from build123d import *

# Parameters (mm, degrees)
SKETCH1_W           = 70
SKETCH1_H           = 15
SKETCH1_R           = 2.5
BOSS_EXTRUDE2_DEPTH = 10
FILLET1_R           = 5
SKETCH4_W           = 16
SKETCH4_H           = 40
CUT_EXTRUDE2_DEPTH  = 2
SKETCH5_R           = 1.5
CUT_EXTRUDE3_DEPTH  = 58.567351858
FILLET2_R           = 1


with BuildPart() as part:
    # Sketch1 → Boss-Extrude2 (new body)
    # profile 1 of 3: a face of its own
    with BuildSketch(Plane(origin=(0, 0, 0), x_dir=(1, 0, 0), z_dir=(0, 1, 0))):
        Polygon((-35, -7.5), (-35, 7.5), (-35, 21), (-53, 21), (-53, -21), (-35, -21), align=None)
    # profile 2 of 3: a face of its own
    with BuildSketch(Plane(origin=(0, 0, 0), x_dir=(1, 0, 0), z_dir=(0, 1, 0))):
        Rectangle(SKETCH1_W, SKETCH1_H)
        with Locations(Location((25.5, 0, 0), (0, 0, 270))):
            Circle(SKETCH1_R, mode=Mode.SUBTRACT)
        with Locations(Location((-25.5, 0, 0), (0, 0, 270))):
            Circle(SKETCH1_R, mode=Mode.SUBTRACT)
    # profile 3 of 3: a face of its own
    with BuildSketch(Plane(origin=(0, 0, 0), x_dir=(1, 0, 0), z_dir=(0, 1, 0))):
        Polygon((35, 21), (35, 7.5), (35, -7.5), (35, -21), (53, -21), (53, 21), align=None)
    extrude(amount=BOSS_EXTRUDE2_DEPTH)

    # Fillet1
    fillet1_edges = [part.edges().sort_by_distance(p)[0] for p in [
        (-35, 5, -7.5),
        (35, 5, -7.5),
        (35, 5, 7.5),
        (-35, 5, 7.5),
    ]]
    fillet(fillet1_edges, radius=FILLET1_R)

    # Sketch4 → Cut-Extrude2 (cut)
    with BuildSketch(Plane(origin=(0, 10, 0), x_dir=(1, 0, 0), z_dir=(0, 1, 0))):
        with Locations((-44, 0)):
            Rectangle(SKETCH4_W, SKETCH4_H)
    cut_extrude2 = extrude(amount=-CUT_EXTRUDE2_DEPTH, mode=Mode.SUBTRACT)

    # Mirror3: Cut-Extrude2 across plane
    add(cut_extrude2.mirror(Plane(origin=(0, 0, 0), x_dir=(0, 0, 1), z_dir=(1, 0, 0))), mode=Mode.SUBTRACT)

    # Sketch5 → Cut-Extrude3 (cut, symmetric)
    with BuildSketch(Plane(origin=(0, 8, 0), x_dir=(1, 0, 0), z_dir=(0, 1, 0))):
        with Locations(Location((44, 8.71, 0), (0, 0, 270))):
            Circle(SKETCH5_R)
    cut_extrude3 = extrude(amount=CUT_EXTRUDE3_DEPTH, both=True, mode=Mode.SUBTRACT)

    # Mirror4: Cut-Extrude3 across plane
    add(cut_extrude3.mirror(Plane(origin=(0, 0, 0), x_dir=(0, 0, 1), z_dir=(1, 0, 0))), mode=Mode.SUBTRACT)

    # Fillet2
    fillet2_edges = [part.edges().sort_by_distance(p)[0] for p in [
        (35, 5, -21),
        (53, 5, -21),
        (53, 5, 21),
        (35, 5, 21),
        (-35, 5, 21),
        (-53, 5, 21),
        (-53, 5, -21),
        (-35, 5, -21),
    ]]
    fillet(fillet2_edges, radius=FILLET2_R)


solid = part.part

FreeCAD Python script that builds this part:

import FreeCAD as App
import Part
import Sketcher
from FreeCAD import Vector


def edges_at(feature, points):
    """Names of the edges that pass closest to the given points."""
    edges = feature.Shape.Edges
    near = lambda p: min(range(len(edges)), key=lambda i: edges[i].distToShape(Part.Vertex(*p))[0])
    return sorted({f"Edge{near(p) + 1}" for p in points})

doc = App.newDocument("Part")
body = doc.addObject("PartDesign::Body", "Body")

# Sketch on XZ plane
sketch1 = body.newObject("Sketcher::SketchObject", "Sketch")
sketch1.AttachmentSupport = (doc.getObject("XZ_Plane"), [""])
sketch1.MapMode = "FlatFace"
sketch1.addGeometry([
    Part.LineSegment(Vector(-35, -21, 0), Vector(-53, -21, 0)),  # 0
    Part.LineSegment(Vector(-53, -21, 0), Vector(-53, 21, 0)),  # 1
    Part.LineSegment(Vector(-53, 21, 0), Vector(-35, 21, 0)),  # 2
    Part.LineSegment(Vector(-35, 21, 0), Vector(-35, 7.5, 0)),  # 3
    Part.LineSegment(Vector(-35, 7.5, 0), Vector(35, 7.5, 0)),  # 4
    Part.LineSegment(Vector(35, 7.5, 0), Vector(35, 21, 0)),  # 5
    Part.LineSegment(Vector(35, 21, 0), Vector(53, 21, 0)),  # 6
    Part.LineSegment(Vector(53, 21, 0), Vector(53, -21, 0)),  # 7
    Part.LineSegment(Vector(53, -21, 0), Vector(35, -21, 0)),  # 8
    Part.LineSegment(Vector(35, -21, 0), Vector(35, -7.5, 0)),  # 9
    Part.LineSegment(Vector(35, -7.5, 0), Vector(-35, -7.5, 0)),  # 10
    Part.LineSegment(Vector(-35, -7.5, 0), Vector(-35, -21, 0)),  # 11
    Part.Circle(Vector(25.5, 0, 0), Vector(0, 0, 1), 2.5),  # 12
    Part.Circle(Vector(-25.5, 0, 0), Vector(0, 0, 1), 2.5),  # 13
], False)
sketch1.addConstraint([
    Sketcher.Constraint("Coincident", 0, 2, 1, 1),
    Sketcher.Constraint("Coincident", 1, 2, 2, 1),
    Sketcher.Constraint("Coincident", 2, 2, 3, 1),
    Sketcher.Constraint("Coincident", 3, 2, 4, 1),
    Sketcher.Constraint("Coincident", 4, 2, 5, 1),
    Sketcher.Constraint("Coincident", 5, 2, 6, 1),
    Sketcher.Constraint("Coincident", 6, 2, 7, 1),
    Sketcher.Constraint("Coincident", 7, 2, 8, 1),
    Sketcher.Constraint("Coincident", 8, 2, 9, 1),
    Sketcher.Constraint("Coincident", 9, 2, 10, 1),
    Sketcher.Constraint("Coincident", 10, 2, 11, 1),
    Sketcher.Constraint("Coincident", 11, 2, 0, 1),
    Sketcher.Constraint("Horizontal", 0),
    Sketcher.Constraint("Vertical", 1),
    Sketcher.Constraint("Horizontal", 2),
    Sketcher.Constraint("Vertical", 3),
    Sketcher.Constraint("Horizontal", 4),
    Sketcher.Constraint("Vertical", 5),
    Sketcher.Constraint("Horizontal", 6),
    Sketcher.Constraint("Vertical", 7),
    Sketcher.Constraint("Horizontal", 8),
    Sketcher.Constraint("Vertical", 9),
    Sketcher.Constraint("Horizontal", 10),
    Sketcher.Constraint("Vertical", 11),
    Sketcher.Constraint("Equal", 12, 13),
    Sketcher.Constraint("Symmetric", 12, 3, 13, 3, -1, 1),
    Sketcher.Constraint("Symmetric", 0, 2, 6, 2, -1, 1),
    Sketcher.Constraint("Symmetric", 2, 2, 8, 2, -1, 1),
    Sketcher.Constraint("Symmetric", 4, 2, 10, 2, -1, 1),
    Sketcher.Constraint("Symmetric", 2, 2, 5, 2, -2),
    Sketcher.Constraint("PointOnObject", 12, 3, -1),
    Sketcher.Constraint("Diameter", 12, 5.0),
    Sketcher.Constraint("DistanceX", 0, 2, 0, 1, 18.0),
    Sketcher.Constraint("DistanceX", 4, 1, 4, 2, 70.0),
    Sketcher.Constraint("DistanceY", 1, 1, 1, 2, 42.0),
    Sketcher.Constraint("DistanceY", 3, 2, 3, 1, 13.5),
    Sketcher.Constraint("DistanceX", 13, 3, 12, 3, 51.0),
])
pad1 = body.newObject("PartDesign::Pad", "Pad")
pad1.Profile = sketch1
pad1.Length = 10
pad1.Reversed = True
doc.recompute()

fillet = body.newObject("PartDesign::Fillet", "Fillet")
fillet.Base = (pad1, edges_at(pad1, [
    (-35, 5, -7.5),
    (35, 5, -7.5),
    (35, 5, 7.5),
    (-35, 5, 7.5),
]))
fillet.Radius = 5

# Sketch on XZ plane
sketch2 = body.newObject("Sketcher::SketchObject", "Sketch001")
sketch2.AttachmentSupport = (doc.getObject("XZ_Plane"), [""])
sketch2.MapMode = "FlatFace"
sketch2.AttachmentOffset = App.Placement(Vector(0, 0, -10), App.Rotation())
sketch2.addGeometry([
    Part.LineSegment(Vector(-52, -20, 0), Vector(-52, 20, 0)),
    Part.LineSegment(Vector(-52, 20, 0), Vector(-36, 20, 0)),
    Part.LineSegment(Vector(-36, 20, 0), Vector(-36, -20, 0)),
    Part.LineSegment(Vector(-36, -20, 0), Vector(-52, -20, 0)),
], False)
sketch2.addConstraint([
    Sketcher.Constraint("Coincident", 0, 2, 1, 1),
    Sketcher.Constraint("Coincident", 1, 2, 2, 1),
    Sketcher.Constraint("Coincident", 2, 2, 3, 1),
    Sketcher.Constraint("Coincident", 3, 2, 0, 1),
    Sketcher.Constraint("Vertical", 0),
    Sketcher.Constraint("Horizontal", 1),
    Sketcher.Constraint("Vertical", 2),
    Sketcher.Constraint("Horizontal", 3),
    Sketcher.Constraint("DistanceX", 1, 1, 1, 2, 16.0),
    Sketcher.Constraint("DistanceY", 0, 1, 0, 2, 40.0),
    Sketcher.Constraint("DistanceX", 0, 2, -1, 1, 52.0),
    Sketcher.Constraint("DistanceY", -1, 1, 0, 2, 20.0),
])
pocket1 = body.newObject("PartDesign::Pocket", "Pocket")
pocket1.Profile = sketch2
pocket1.Length = 2
pocket1.Reversed = True
doc.recompute()

mirrored = body.newObject("PartDesign::Mirrored", "Mirrored")
mirrored.Originals = [pocket1]
mirrored.MirrorPlane = (doc.getObject("YZ_Plane"), [""])
body.Tip = mirrored

# Sketch on XZ plane
sketch3 = body.newObject("Sketcher::SketchObject", "Sketch002")
sketch3.AttachmentSupport = (doc.getObject("XZ_Plane"), [""])
sketch3.MapMode = "FlatFace"
sketch3.AttachmentOffset = App.Placement(Vector(0, 0, -8), App.Rotation())
sketch3.addGeometry(Part.Circle(Vector(44, -8.7, 0), Vector(0, 0, 1), 1.5), False)
sketch3.addConstraint([
    Sketcher.Constraint("Diameter", 0, 3.0),
    Sketcher.Constraint("DistanceX", -1, 1, 0, 3, 44.0),
    Sketcher.Constraint("DistanceY", 0, 3, -1, 1, 8.71),
])
pocket2 = body.newObject("PartDesign::Pocket", "Pocket001")
pocket2.Profile = sketch3
pocket2.Length = 117.134704
pocket2.Midplane = True
doc.recompute()

mirrored2 = body.newObject("PartDesign::Mirrored", "Mirrored001")
mirrored2.Originals = [pocket2]
mirrored2.MirrorPlane = (doc.getObject("YZ_Plane"), [""])
body.Tip = mirrored2
doc.recompute()

fillet2 = body.newObject("PartDesign::Fillet", "Fillet001")
fillet2.Base = (mirrored2, edges_at(mirrored2, [
    (35, 5, -21),
    (53, 5, -21),
    (53, 5, 21),
    (35, 5, 21),
    (-35, 5, 21),
    (-53, 5, 21),
    (-53, 5, -21),
    (-35, 5, -21),
]))
fillet2.Radius = 1

doc.recompute()
